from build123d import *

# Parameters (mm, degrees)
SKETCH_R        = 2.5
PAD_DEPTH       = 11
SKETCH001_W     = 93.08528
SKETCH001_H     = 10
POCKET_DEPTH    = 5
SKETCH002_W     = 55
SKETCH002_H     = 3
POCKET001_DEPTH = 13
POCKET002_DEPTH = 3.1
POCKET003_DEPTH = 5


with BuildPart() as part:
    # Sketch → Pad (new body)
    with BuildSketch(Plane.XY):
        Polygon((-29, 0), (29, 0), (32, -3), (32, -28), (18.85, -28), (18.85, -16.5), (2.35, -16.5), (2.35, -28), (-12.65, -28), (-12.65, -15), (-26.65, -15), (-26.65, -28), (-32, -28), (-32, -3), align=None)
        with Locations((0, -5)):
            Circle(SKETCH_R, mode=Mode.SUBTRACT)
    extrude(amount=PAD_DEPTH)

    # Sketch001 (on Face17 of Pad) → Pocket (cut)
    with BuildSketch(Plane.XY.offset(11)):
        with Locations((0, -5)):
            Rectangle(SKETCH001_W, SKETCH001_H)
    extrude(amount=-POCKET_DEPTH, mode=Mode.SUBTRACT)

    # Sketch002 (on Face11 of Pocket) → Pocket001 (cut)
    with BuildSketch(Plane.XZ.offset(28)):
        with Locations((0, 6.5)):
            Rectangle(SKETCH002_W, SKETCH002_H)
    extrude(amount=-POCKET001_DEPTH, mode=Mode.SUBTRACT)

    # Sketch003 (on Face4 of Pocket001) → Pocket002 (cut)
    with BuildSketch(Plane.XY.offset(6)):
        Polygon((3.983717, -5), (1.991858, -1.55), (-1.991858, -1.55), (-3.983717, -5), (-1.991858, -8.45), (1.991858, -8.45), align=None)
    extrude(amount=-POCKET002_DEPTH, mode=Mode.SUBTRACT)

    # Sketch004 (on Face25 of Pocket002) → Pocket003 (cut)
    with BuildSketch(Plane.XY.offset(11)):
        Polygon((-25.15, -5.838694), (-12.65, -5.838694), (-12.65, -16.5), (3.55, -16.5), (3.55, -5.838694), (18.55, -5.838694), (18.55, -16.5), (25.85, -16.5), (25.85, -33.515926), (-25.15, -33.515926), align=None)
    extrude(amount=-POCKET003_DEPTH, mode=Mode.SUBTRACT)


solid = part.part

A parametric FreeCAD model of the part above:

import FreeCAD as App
import Part
import Sketcher

V = App.Vector
Q = App.Units.Quantity


def add_polygon(sketch, points):
    """Adds a closed chain of lines whose ends are joined by coincident constraints."""
    first, n = sketch.GeometryCount, len(points)
    for a, b in zip(points, points[1:] + points[:1]):
        sketch.addGeometry(Part.LineSegment(App.Vector(*a, 0), App.Vector(*b, 0)), False)
    for i in range(n):
        sketch.addConstraint(Sketcher.Constraint("Coincident", first + i, 2, first + (i + 1) % n, 1))

doc = App.newDocument("Part")
params = doc.addObject("Spreadsheet::Sheet", "Params")
for row, (alias, value) in enumerate([
    ("sketch1_diameter", "5 mm"),
    ("sketch1_width", "58 mm"),
    ("sketch1_width2", "14 mm"),
    ("sketch1_width3", "15 mm"),
    ("sketch1_height", "25 mm"),
    ("pad1_length", "11 mm"),
    ("sketch2_height", "10 mm"),
    ("pocket1_length", "5 mm"),
    ("sketch3_width", "55 mm"),
    ("sketch3_height", "3 mm"),
    ("pocket2_length", "13 mm"),
    ("pocket3_length", "3.1 mm"),
    ("sketch5_width", "51 mm"),
    ("sketch5_width2", "15 mm"),
    ("sketch5_width3", "12.5 mm"),
    ("sketch5_width4", "7.3 mm"),
    ("pocket4_length", "5 mm"),
], start=1):
    params.set(f"A{row}", alias)
    params.set(f"B{row}", "=" + value)
    params.setAlias(f"B{row}", alias)

body = doc.addObject("PartDesign::Body", "Body")

# Sketch on XY plane
sketch1 = body.newObject("Sketcher::SketchObject", "Sketch")
sketch1.AttachmentSupport = (doc.getObject("XY_Plane"), [""])
sketch1.MapMode = "FlatFace"
add_polygon(sketch1, [(29, 0), (-29, 0), (-32, -3), (-32, -28), (-26.6, -28), (-26.6, -15), (-12.7, -15), (-12.7, -28), (2.4, -28), (2.4, -16.5), (18.9, -16.5), (18.9, -28), (32, -28), (32, -3)])  # lines 0-13
sketch1.addGeometry(Part.Circle(V(0, -5, 0), V(0, 0, 1), 2.5), False)  # 14
sketch1.addConstraint([
    Sketcher.Constraint("Horizontal", 0),
    Sketcher.Constraint("Vertical", 2),
    Sketcher.Constraint("Horizontal", 3),
    Sketcher.Constraint("Vertical", 4),
    Sketcher.Constraint("Horizontal", 5),
    Sketcher.Constraint("Vertical", 6),
    Sketcher.Constraint("Horizontal", 7),
    Sketcher.Constraint("Vertical", 8),
    Sketcher.Constraint("Horizontal", 9),
    Sketcher.Constraint("Vertical", 10),
    Sketcher.Constraint("Horizontal", 11),
    Sketcher.Constraint("Vertical", 12),
    Sketcher.Constraint("Symmetric", 0, 2, 13, 2, -1, 1),
    Sketcher.Constraint("Symmetric", 2, 2, 11, 2, -2),
    Sketcher.Constraint("PointOnObject", 14, 3, -2),
    Sketcher.Constraint("Perpendicular", 1, 13),
    Sketcher.Constraint("Horizontal", 3, 2, 6, 2),
    Sketcher.Constraint("Horizontal", 1, 2, 12, 2),
    Sketcher.Constraint("Diameter", 14, 5.0),
    Sketcher.Constraint("DistanceX", 0, 2, 0, 1, 58.0),
    Sketcher.Constraint("DistanceX", 5, 1, 5, 2, 14.0),
    Sketcher.Constraint("DistanceX", 7, 1, 7, 2, 15.0),
    Sketcher.Constraint("DistanceY", 2, 2, 2, 1, 25.0),
    Sketcher.Constraint("DistanceY", 4, 1, 4, 2, 13.0),
    Sketcher.Constraint("DistanceX", 9, 1, 9, 2, 16.5),
    Sketcher.Constraint("DistanceY", 8, 1, 8, 2, 11.5),
    Sketcher.Constraint("DistanceY", 14, 3, -1, 1, 5.0),
    Sketcher.Constraint("DistanceX", 1, 2, -1, 1, 32.0),
    Sketcher.Constraint("DistanceX", 3, 1, 3, 2, 5.35),
])
sketch1.setExpression("Constraints[32]", "Params.sketch1_diameter")
sketch1.setExpression("Constraints[33]", "Params.sketch1_width")
sketch1.setExpression("Constraints[34]", "Params.sketch1_width2")
sketch1.setExpression("Constraints[35]", "Params.sketch1_width3")
sketch1.setExpression("Constraints[36]", "Params.sketch1_height")
pad1 = body.newObject("PartDesign::Pad", "Pad")
pad1.Profile = sketch1
pad1.setExpression("Length", "Params.pad1_length")

# Sketch on XY plane
sketch2 = body.newObject("Sketcher::SketchObject", "Sketch001")
sketch2.AttachmentSupport = (doc.getObject("XY_Plane"), [""])
sketch2.MapMode = "FlatFace"
sketch2.AttachmentOffset = App.Placement(V(0, 0, 11), App.Rotation())
add_polygon(sketch2, [(-47, 0), (-47, -10), (47, -10), (47, 0)])  # lines 0-3
sketch2.addConstraint([
    Sketcher.Constraint("Vertical", 0),
    Sketcher.Constraint("Horizontal", 1),
    Sketcher.Constraint("Vertical", 2),
    Sketcher.Constraint("Horizontal", 3),
    Sketcher.Constraint("Symmetric", 2, 2, 3, 2, -1, 1),
    Sketcher.Constraint("DistanceY", 0, 2, 0, 1, 10.0),
    Sketcher.Constraint("DistanceX", 1, 1, 1, 2, 93.08528),
])
sketch2.setExpression("Constraints[9]", "Params.sketch2_height")
pocket1 = body.newObject("PartDesign::Pocket", "Pocket")
pocket1.Profile = sketch2
pocket1.setExpression("Length", "Params.pocket1_length")

# Sketch on XZ plane
sketch3 = body.newObject("Sketcher::SketchObject", "Sketch002")
sketch3.AttachmentSupport = (doc.getObject("XZ_Plane"), [""])
sketch3.MapMode = "FlatFace"
sketch3.AttachmentOffset = App.Placement(V(0, 0, 28), App.Rotation())
add_polygon(sketch3, [(-27.5, 8), (-27.5, 5), (27.5, 5), (27.5, 8)])  # lines 0-3
sketch3.addConstraint([
    Sketcher.Constraint("Vertical", 0),
    Sketcher.Constraint("Horizontal", 1),
    Sketcher.Constraint("Vertical", 2),
    Sketcher.Constraint("Horizontal", 3),
    Sketcher.Constraint("DistanceX", 1, 1, 1, 2, 55.0),
    Sketcher.Constraint("DistanceY", 0, 2, 0, 1, 3.0),
    Sketcher.Constraint("DistanceY", -1, 1, 0, 2, 5.0),
    Sketcher.Constraint("DistanceX", 0, 2, -1, 1, 27.5),
])
sketch3.setExpression("Constraints[8]", "Params.sketch3_width")
sketch3.setExpression("Constraints[9]", "Params.sketch3_height")
pocket2 = body.newObject("PartDesign::Pocket", "Pocket001")
pocket2.Profile = sketch3
pocket2.setExpression("Length", "Params.pocket2_length")

# Sketch on XY plane
sketch4 = body.newObject("Sketcher::SketchObject", "Sketch003")
sketch4.AttachmentSupport = (doc.getObject("XY_Plane"), [""])
sketch4.MapMode = "FlatFace"
sketch4.AttachmentOffset = App.Placement(V(0, 0, 6), App.Rotation())
add_polygon(sketch4, [(4, -5), (2, -1.6), (-2, -1.6), (-4, -5), (-2, -8.4), (2, -8.4)])  # lines 0-5
sketch4.addConstraint([
    Sketcher.Constraint("Horizontal", 1),
    Sketcher.Constraint("Horizontal", 4),
    Sketcher.Constraint("Symmetric", 2, 2, 5, 2, -2),
    Sketcher.Constraint("Parallel", 0, 3),
    Sketcher.Constraint("Parallel", 2, 5),
    Sketcher.Constraint("Vertical", 1, 2, 3, 2),
    Sketcher.Constraint("Vertical", 0, 2, 4, 2),
    Sketcher.Constraint("Angle", 0, Q("120.000007 deg")),
    Sketcher.Constraint("DistanceY", 2, 2, -1, 1, 5.0),
    Sketcher.Constraint("DistanceY", 3, 2, 1, 2, 6.9),
    Sketcher.Constraint("DistanceX", 1, 2, 1, 1, 3.983716),
])
pocket3 = body.newObject("PartDesign::Pocket", "Pocket002")
pocket3.Profile = sketch4
pocket3.setExpression("Length", "Params.pocket3_length")

# Sketch on XY plane
sketch5 = body.newObject("Sketcher::SketchObject", "Sketch004")
sketch5.AttachmentSupport = (doc.getObject("XY_Plane"), [""])
sketch5.MapMode = "FlatFace"
sketch5.AttachmentOffset = App.Placement(V(0, 0, 11), App.Rotation())
add_polygon(sketch5, [(-13, -6), (-25, -6), (-25, -34), (26, -34), (26, -16), (19, -16), (19, -6), (4, -6), (4, -16), (-13, -16)])  # lines 0-9
sketch5.addConstraint([
    Sketcher.Constraint("Horizontal", 0),
    Sketcher.Constraint("Vertical", 1),
    Sketcher.Constraint("Horizontal", 2),
    Sketcher.Constraint("Vertical", 3),
    Sketcher.Constraint("Horizontal", 4),
    Sketcher.Constraint("Vertical", 5),
    Sketcher.Constraint("Horizontal", 6),
    Sketcher.Constraint("Vertical", 7),
    Sketcher.Constraint("Horizontal", 8),
    Sketcher.Constraint("Vertical", 9),
    Sketcher.Constraint("Horizontal", 0, 2, 5, 2),
    Sketcher.Constraint("Horizontal", 4, 2, 7, 2),
    Sketcher.Constraint("DistanceX", 2, 1, 2, 2, 51.0),
    Sketcher.Constraint("DistanceX", 6, 2, 6, 1, 15.0),
    Sketcher.Constraint("DistanceX", 0, 2, 0, 1, 12.5),
    Sketcher.Constraint("DistanceX", 4, 2, 4, 1, 7.3),
    Sketcher.Constraint("DistanceY", 3, 2, -1, 1, 16.5),
    Sketcher.Constraint("DistanceX", 0, 2, -1, 1, 25.15),
    Sketcher.Constraint("DistanceY", 1, 2, 1, 1, 27.677232),
    Sketcher.Constraint("DistanceY", 3, 1, 3, 2, 17.015926),
])
sketch5.setExpression("Constraints[22]", "Params.sketch5_width")
sketch5.setExpression("Constraints[23]", "Params.sketch5_width2")
sketch5.setExpression("Constraints[24]", "Params.sketch5_width3")
sketch5.setExpression("Constraints[25]", "Params.sketch5_width4")
pocket4 = body.newObject("PartDesign::Pocket", "Pocket003")
pocket4.Profile = sketch5
pocket4.setExpression("Length", "Params.pocket4_length")

doc.recompute()
